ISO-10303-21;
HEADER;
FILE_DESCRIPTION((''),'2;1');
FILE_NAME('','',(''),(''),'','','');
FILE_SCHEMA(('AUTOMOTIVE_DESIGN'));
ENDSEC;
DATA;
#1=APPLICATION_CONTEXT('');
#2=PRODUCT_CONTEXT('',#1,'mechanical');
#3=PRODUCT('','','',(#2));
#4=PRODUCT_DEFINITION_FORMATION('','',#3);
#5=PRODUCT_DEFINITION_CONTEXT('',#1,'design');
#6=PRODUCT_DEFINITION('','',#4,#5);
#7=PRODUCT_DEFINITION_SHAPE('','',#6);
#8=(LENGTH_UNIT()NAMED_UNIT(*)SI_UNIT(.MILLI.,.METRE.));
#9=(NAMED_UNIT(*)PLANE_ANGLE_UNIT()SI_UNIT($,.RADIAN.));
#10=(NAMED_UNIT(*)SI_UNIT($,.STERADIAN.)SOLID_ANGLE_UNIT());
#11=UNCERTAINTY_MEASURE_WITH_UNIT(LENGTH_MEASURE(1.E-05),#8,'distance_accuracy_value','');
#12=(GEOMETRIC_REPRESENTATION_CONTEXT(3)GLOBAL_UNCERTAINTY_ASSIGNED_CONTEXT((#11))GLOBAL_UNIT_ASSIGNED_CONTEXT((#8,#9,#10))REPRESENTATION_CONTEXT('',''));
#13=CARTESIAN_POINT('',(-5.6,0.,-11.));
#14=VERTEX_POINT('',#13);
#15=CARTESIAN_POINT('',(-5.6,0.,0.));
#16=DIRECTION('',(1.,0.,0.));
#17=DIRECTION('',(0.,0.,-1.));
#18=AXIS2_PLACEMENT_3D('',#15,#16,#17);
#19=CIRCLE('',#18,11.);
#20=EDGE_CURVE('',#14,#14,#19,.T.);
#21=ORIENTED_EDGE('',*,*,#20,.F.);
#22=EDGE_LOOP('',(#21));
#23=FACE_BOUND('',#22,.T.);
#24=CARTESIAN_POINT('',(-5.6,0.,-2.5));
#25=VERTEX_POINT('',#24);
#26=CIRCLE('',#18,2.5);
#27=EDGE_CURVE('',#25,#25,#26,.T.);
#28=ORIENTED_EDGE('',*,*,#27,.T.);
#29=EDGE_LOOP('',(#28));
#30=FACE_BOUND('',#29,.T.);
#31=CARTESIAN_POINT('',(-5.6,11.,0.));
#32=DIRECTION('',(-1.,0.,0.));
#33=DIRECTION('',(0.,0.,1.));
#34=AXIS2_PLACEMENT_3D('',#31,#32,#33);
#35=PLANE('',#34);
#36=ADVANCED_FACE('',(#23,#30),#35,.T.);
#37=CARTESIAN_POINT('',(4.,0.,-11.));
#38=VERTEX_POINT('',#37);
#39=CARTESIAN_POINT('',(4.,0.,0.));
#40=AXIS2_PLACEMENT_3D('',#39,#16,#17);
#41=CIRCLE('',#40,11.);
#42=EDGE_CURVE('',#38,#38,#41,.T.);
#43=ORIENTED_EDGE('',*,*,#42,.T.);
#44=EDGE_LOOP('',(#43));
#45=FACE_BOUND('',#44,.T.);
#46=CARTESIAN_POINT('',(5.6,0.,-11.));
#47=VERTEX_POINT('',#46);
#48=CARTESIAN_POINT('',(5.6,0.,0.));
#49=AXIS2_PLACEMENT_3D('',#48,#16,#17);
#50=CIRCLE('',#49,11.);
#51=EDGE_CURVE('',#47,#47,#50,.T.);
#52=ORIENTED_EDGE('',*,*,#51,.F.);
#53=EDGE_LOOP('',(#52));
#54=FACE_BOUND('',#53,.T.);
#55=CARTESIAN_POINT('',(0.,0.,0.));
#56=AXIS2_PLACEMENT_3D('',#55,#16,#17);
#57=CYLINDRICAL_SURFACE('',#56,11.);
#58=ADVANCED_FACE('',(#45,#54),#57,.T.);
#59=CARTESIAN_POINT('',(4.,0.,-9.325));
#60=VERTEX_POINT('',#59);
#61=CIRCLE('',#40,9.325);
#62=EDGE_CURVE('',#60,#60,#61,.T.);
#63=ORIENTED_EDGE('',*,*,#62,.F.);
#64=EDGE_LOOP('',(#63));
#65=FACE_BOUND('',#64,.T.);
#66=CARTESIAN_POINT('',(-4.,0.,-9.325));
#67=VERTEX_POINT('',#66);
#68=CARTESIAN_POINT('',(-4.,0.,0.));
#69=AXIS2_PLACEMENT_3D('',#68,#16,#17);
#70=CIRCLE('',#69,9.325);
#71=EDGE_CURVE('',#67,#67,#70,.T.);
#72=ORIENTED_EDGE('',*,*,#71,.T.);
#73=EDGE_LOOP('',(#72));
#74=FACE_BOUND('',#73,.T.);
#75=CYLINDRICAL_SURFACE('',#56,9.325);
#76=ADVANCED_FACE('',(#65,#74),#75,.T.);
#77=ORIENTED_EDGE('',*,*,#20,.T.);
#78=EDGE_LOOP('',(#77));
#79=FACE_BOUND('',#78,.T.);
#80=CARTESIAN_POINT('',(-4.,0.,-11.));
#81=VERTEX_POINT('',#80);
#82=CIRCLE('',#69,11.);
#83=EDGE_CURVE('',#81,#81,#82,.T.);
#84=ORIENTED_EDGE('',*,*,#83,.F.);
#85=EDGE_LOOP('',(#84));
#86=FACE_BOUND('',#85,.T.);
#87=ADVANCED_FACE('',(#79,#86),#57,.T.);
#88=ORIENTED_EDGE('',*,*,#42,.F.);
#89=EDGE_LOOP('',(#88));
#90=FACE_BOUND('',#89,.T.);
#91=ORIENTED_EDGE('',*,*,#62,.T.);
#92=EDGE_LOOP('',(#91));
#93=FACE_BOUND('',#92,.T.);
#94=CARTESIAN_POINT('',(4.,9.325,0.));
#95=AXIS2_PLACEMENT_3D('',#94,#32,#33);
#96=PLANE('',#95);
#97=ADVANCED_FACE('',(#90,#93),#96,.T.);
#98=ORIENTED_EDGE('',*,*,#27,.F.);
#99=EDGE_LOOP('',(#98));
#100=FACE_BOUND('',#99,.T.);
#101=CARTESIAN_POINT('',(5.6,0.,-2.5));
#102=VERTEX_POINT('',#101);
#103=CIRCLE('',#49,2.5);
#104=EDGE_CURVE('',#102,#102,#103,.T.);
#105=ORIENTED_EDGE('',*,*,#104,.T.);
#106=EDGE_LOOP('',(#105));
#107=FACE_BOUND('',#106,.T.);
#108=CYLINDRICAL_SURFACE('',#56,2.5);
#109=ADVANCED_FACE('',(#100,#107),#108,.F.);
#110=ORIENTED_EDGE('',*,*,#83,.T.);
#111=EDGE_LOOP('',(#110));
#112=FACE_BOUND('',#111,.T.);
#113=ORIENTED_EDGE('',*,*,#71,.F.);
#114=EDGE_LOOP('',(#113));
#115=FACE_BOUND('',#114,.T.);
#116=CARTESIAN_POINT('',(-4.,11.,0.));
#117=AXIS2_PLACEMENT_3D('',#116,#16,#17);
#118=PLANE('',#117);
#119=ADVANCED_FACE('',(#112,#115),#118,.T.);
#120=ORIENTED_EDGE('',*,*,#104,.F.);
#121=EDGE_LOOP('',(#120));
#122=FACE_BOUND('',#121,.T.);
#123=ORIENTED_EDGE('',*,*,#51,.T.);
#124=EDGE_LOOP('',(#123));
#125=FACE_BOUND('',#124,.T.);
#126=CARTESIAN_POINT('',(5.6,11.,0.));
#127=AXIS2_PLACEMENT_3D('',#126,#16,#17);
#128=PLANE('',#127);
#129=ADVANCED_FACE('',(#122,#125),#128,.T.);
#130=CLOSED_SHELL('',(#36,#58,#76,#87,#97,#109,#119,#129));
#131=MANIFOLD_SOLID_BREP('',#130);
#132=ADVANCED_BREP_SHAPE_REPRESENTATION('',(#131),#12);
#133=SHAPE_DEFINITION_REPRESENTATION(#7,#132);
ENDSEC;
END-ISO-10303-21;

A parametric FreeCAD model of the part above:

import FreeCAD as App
import Part
import Sketcher
from FreeCAD import Vector
Q = App.Units.Quantity

doc = App.newDocument("Part")
body = doc.addObject("PartDesign::Body", "Body")

# Sketch on XY plane
sketch1 = doc.addObject("Sketcher::SketchObject", "Sketch")
body.addObject(sketch1)
sketch1.AttachmentSupport = (doc.XY_Plane, [""])
sketch1.MapMode = "FlatFace"
sketch1.addGeometry([
    Part.LineSegment(Vector(-4, 11, 0), Vector(-5.6, 11, 0)),  # 0
    Part.LineSegment(Vector(-5.6, 11, 0), Vector(-5.6, 2.5, 0)),  # 1
    Part.LineSegment(Vector(-5.6, 2.5, 0), Vector(5.6, 2.5, 0)),  # 2
    Part.LineSegment(Vector(5.6, 2.5, 0), Vector(5.6, 11, 0)),  # 3
    Part.LineSegment(Vector(5.6, 11, 0), Vector(4, 11, 0)),  # 4
    Part.LineSegment(Vector(4, 11, 0), Vector(4, 9.3, 0)),  # 5
    Part.LineSegment(Vector(4, 9.3, 0), Vector(-4, 9.3, 0)),  # 6
    Part.LineSegment(Vector(-4, 9.3, 0), Vector(-4, 11, 0)),  # 7
], False)
sketch1.addConstraint([
    Sketcher.Constraint("Coincident", 0, 2, 1, 1),
    Sketcher.Constraint("Coincident", 1, 2, 2, 1),
    Sketcher.Constraint("Coincident", 2, 2, 3, 1),
    Sketcher.Constraint("Coincident", 3, 2, 4, 1),
    Sketcher.Constraint("Coincident", 4, 2, 5, 1),
    Sketcher.Constraint("Coincident", 5, 2, 6, 1),
    Sketcher.Constraint("Coincident", 6, 2, 7, 1),
    Sketcher.Constraint("Coincident", 7, 2, 0, 1),
    Sketcher.Constraint("Horizontal", 0),
    Sketcher.Constraint("Vertical", 1),
    Sketcher.Constraint("Horizontal", 2),
    Sketcher.Constraint("Vertical", 3),
    Sketcher.Constraint("Horizontal", 4),
    Sketcher.Constraint("Vertical", 5),
    Sketcher.Constraint("Horizontal", 6),
    Sketcher.Constraint("Vertical", 7),
    Sketcher.Constraint("Symmetric", 0, 2, 3, 2, -2),
    Sketcher.Constraint("Equal", 0, 4),
    Sketcher.Constraint("DistanceX", 6, 2, 6, 1, Q("8 mm")),
    Sketcher.Constraint("DistanceX", 0, 2, 0, 1, Q("1.6 mm")),
    Sketcher.Constraint("DistanceY", 1, 2, 1, 1, Q("8.5 mm")),
    Sketcher.Constraint("DistanceY", -1, 1, 0, 2, Q("11 mm")),
    Sketcher.Constraint("DistanceY", 5, 2, 5, 1, Q("1.675 mm")),
])
revolution = doc.addObject("PartDesign::Revolution", "Revolution")
body.addObject(revolution)
revolution.Profile = sketch1
revolution.ReferenceAxis = (sketch1, ["H_Axis"])
revolution.Angle = 360

doc.recompute()
